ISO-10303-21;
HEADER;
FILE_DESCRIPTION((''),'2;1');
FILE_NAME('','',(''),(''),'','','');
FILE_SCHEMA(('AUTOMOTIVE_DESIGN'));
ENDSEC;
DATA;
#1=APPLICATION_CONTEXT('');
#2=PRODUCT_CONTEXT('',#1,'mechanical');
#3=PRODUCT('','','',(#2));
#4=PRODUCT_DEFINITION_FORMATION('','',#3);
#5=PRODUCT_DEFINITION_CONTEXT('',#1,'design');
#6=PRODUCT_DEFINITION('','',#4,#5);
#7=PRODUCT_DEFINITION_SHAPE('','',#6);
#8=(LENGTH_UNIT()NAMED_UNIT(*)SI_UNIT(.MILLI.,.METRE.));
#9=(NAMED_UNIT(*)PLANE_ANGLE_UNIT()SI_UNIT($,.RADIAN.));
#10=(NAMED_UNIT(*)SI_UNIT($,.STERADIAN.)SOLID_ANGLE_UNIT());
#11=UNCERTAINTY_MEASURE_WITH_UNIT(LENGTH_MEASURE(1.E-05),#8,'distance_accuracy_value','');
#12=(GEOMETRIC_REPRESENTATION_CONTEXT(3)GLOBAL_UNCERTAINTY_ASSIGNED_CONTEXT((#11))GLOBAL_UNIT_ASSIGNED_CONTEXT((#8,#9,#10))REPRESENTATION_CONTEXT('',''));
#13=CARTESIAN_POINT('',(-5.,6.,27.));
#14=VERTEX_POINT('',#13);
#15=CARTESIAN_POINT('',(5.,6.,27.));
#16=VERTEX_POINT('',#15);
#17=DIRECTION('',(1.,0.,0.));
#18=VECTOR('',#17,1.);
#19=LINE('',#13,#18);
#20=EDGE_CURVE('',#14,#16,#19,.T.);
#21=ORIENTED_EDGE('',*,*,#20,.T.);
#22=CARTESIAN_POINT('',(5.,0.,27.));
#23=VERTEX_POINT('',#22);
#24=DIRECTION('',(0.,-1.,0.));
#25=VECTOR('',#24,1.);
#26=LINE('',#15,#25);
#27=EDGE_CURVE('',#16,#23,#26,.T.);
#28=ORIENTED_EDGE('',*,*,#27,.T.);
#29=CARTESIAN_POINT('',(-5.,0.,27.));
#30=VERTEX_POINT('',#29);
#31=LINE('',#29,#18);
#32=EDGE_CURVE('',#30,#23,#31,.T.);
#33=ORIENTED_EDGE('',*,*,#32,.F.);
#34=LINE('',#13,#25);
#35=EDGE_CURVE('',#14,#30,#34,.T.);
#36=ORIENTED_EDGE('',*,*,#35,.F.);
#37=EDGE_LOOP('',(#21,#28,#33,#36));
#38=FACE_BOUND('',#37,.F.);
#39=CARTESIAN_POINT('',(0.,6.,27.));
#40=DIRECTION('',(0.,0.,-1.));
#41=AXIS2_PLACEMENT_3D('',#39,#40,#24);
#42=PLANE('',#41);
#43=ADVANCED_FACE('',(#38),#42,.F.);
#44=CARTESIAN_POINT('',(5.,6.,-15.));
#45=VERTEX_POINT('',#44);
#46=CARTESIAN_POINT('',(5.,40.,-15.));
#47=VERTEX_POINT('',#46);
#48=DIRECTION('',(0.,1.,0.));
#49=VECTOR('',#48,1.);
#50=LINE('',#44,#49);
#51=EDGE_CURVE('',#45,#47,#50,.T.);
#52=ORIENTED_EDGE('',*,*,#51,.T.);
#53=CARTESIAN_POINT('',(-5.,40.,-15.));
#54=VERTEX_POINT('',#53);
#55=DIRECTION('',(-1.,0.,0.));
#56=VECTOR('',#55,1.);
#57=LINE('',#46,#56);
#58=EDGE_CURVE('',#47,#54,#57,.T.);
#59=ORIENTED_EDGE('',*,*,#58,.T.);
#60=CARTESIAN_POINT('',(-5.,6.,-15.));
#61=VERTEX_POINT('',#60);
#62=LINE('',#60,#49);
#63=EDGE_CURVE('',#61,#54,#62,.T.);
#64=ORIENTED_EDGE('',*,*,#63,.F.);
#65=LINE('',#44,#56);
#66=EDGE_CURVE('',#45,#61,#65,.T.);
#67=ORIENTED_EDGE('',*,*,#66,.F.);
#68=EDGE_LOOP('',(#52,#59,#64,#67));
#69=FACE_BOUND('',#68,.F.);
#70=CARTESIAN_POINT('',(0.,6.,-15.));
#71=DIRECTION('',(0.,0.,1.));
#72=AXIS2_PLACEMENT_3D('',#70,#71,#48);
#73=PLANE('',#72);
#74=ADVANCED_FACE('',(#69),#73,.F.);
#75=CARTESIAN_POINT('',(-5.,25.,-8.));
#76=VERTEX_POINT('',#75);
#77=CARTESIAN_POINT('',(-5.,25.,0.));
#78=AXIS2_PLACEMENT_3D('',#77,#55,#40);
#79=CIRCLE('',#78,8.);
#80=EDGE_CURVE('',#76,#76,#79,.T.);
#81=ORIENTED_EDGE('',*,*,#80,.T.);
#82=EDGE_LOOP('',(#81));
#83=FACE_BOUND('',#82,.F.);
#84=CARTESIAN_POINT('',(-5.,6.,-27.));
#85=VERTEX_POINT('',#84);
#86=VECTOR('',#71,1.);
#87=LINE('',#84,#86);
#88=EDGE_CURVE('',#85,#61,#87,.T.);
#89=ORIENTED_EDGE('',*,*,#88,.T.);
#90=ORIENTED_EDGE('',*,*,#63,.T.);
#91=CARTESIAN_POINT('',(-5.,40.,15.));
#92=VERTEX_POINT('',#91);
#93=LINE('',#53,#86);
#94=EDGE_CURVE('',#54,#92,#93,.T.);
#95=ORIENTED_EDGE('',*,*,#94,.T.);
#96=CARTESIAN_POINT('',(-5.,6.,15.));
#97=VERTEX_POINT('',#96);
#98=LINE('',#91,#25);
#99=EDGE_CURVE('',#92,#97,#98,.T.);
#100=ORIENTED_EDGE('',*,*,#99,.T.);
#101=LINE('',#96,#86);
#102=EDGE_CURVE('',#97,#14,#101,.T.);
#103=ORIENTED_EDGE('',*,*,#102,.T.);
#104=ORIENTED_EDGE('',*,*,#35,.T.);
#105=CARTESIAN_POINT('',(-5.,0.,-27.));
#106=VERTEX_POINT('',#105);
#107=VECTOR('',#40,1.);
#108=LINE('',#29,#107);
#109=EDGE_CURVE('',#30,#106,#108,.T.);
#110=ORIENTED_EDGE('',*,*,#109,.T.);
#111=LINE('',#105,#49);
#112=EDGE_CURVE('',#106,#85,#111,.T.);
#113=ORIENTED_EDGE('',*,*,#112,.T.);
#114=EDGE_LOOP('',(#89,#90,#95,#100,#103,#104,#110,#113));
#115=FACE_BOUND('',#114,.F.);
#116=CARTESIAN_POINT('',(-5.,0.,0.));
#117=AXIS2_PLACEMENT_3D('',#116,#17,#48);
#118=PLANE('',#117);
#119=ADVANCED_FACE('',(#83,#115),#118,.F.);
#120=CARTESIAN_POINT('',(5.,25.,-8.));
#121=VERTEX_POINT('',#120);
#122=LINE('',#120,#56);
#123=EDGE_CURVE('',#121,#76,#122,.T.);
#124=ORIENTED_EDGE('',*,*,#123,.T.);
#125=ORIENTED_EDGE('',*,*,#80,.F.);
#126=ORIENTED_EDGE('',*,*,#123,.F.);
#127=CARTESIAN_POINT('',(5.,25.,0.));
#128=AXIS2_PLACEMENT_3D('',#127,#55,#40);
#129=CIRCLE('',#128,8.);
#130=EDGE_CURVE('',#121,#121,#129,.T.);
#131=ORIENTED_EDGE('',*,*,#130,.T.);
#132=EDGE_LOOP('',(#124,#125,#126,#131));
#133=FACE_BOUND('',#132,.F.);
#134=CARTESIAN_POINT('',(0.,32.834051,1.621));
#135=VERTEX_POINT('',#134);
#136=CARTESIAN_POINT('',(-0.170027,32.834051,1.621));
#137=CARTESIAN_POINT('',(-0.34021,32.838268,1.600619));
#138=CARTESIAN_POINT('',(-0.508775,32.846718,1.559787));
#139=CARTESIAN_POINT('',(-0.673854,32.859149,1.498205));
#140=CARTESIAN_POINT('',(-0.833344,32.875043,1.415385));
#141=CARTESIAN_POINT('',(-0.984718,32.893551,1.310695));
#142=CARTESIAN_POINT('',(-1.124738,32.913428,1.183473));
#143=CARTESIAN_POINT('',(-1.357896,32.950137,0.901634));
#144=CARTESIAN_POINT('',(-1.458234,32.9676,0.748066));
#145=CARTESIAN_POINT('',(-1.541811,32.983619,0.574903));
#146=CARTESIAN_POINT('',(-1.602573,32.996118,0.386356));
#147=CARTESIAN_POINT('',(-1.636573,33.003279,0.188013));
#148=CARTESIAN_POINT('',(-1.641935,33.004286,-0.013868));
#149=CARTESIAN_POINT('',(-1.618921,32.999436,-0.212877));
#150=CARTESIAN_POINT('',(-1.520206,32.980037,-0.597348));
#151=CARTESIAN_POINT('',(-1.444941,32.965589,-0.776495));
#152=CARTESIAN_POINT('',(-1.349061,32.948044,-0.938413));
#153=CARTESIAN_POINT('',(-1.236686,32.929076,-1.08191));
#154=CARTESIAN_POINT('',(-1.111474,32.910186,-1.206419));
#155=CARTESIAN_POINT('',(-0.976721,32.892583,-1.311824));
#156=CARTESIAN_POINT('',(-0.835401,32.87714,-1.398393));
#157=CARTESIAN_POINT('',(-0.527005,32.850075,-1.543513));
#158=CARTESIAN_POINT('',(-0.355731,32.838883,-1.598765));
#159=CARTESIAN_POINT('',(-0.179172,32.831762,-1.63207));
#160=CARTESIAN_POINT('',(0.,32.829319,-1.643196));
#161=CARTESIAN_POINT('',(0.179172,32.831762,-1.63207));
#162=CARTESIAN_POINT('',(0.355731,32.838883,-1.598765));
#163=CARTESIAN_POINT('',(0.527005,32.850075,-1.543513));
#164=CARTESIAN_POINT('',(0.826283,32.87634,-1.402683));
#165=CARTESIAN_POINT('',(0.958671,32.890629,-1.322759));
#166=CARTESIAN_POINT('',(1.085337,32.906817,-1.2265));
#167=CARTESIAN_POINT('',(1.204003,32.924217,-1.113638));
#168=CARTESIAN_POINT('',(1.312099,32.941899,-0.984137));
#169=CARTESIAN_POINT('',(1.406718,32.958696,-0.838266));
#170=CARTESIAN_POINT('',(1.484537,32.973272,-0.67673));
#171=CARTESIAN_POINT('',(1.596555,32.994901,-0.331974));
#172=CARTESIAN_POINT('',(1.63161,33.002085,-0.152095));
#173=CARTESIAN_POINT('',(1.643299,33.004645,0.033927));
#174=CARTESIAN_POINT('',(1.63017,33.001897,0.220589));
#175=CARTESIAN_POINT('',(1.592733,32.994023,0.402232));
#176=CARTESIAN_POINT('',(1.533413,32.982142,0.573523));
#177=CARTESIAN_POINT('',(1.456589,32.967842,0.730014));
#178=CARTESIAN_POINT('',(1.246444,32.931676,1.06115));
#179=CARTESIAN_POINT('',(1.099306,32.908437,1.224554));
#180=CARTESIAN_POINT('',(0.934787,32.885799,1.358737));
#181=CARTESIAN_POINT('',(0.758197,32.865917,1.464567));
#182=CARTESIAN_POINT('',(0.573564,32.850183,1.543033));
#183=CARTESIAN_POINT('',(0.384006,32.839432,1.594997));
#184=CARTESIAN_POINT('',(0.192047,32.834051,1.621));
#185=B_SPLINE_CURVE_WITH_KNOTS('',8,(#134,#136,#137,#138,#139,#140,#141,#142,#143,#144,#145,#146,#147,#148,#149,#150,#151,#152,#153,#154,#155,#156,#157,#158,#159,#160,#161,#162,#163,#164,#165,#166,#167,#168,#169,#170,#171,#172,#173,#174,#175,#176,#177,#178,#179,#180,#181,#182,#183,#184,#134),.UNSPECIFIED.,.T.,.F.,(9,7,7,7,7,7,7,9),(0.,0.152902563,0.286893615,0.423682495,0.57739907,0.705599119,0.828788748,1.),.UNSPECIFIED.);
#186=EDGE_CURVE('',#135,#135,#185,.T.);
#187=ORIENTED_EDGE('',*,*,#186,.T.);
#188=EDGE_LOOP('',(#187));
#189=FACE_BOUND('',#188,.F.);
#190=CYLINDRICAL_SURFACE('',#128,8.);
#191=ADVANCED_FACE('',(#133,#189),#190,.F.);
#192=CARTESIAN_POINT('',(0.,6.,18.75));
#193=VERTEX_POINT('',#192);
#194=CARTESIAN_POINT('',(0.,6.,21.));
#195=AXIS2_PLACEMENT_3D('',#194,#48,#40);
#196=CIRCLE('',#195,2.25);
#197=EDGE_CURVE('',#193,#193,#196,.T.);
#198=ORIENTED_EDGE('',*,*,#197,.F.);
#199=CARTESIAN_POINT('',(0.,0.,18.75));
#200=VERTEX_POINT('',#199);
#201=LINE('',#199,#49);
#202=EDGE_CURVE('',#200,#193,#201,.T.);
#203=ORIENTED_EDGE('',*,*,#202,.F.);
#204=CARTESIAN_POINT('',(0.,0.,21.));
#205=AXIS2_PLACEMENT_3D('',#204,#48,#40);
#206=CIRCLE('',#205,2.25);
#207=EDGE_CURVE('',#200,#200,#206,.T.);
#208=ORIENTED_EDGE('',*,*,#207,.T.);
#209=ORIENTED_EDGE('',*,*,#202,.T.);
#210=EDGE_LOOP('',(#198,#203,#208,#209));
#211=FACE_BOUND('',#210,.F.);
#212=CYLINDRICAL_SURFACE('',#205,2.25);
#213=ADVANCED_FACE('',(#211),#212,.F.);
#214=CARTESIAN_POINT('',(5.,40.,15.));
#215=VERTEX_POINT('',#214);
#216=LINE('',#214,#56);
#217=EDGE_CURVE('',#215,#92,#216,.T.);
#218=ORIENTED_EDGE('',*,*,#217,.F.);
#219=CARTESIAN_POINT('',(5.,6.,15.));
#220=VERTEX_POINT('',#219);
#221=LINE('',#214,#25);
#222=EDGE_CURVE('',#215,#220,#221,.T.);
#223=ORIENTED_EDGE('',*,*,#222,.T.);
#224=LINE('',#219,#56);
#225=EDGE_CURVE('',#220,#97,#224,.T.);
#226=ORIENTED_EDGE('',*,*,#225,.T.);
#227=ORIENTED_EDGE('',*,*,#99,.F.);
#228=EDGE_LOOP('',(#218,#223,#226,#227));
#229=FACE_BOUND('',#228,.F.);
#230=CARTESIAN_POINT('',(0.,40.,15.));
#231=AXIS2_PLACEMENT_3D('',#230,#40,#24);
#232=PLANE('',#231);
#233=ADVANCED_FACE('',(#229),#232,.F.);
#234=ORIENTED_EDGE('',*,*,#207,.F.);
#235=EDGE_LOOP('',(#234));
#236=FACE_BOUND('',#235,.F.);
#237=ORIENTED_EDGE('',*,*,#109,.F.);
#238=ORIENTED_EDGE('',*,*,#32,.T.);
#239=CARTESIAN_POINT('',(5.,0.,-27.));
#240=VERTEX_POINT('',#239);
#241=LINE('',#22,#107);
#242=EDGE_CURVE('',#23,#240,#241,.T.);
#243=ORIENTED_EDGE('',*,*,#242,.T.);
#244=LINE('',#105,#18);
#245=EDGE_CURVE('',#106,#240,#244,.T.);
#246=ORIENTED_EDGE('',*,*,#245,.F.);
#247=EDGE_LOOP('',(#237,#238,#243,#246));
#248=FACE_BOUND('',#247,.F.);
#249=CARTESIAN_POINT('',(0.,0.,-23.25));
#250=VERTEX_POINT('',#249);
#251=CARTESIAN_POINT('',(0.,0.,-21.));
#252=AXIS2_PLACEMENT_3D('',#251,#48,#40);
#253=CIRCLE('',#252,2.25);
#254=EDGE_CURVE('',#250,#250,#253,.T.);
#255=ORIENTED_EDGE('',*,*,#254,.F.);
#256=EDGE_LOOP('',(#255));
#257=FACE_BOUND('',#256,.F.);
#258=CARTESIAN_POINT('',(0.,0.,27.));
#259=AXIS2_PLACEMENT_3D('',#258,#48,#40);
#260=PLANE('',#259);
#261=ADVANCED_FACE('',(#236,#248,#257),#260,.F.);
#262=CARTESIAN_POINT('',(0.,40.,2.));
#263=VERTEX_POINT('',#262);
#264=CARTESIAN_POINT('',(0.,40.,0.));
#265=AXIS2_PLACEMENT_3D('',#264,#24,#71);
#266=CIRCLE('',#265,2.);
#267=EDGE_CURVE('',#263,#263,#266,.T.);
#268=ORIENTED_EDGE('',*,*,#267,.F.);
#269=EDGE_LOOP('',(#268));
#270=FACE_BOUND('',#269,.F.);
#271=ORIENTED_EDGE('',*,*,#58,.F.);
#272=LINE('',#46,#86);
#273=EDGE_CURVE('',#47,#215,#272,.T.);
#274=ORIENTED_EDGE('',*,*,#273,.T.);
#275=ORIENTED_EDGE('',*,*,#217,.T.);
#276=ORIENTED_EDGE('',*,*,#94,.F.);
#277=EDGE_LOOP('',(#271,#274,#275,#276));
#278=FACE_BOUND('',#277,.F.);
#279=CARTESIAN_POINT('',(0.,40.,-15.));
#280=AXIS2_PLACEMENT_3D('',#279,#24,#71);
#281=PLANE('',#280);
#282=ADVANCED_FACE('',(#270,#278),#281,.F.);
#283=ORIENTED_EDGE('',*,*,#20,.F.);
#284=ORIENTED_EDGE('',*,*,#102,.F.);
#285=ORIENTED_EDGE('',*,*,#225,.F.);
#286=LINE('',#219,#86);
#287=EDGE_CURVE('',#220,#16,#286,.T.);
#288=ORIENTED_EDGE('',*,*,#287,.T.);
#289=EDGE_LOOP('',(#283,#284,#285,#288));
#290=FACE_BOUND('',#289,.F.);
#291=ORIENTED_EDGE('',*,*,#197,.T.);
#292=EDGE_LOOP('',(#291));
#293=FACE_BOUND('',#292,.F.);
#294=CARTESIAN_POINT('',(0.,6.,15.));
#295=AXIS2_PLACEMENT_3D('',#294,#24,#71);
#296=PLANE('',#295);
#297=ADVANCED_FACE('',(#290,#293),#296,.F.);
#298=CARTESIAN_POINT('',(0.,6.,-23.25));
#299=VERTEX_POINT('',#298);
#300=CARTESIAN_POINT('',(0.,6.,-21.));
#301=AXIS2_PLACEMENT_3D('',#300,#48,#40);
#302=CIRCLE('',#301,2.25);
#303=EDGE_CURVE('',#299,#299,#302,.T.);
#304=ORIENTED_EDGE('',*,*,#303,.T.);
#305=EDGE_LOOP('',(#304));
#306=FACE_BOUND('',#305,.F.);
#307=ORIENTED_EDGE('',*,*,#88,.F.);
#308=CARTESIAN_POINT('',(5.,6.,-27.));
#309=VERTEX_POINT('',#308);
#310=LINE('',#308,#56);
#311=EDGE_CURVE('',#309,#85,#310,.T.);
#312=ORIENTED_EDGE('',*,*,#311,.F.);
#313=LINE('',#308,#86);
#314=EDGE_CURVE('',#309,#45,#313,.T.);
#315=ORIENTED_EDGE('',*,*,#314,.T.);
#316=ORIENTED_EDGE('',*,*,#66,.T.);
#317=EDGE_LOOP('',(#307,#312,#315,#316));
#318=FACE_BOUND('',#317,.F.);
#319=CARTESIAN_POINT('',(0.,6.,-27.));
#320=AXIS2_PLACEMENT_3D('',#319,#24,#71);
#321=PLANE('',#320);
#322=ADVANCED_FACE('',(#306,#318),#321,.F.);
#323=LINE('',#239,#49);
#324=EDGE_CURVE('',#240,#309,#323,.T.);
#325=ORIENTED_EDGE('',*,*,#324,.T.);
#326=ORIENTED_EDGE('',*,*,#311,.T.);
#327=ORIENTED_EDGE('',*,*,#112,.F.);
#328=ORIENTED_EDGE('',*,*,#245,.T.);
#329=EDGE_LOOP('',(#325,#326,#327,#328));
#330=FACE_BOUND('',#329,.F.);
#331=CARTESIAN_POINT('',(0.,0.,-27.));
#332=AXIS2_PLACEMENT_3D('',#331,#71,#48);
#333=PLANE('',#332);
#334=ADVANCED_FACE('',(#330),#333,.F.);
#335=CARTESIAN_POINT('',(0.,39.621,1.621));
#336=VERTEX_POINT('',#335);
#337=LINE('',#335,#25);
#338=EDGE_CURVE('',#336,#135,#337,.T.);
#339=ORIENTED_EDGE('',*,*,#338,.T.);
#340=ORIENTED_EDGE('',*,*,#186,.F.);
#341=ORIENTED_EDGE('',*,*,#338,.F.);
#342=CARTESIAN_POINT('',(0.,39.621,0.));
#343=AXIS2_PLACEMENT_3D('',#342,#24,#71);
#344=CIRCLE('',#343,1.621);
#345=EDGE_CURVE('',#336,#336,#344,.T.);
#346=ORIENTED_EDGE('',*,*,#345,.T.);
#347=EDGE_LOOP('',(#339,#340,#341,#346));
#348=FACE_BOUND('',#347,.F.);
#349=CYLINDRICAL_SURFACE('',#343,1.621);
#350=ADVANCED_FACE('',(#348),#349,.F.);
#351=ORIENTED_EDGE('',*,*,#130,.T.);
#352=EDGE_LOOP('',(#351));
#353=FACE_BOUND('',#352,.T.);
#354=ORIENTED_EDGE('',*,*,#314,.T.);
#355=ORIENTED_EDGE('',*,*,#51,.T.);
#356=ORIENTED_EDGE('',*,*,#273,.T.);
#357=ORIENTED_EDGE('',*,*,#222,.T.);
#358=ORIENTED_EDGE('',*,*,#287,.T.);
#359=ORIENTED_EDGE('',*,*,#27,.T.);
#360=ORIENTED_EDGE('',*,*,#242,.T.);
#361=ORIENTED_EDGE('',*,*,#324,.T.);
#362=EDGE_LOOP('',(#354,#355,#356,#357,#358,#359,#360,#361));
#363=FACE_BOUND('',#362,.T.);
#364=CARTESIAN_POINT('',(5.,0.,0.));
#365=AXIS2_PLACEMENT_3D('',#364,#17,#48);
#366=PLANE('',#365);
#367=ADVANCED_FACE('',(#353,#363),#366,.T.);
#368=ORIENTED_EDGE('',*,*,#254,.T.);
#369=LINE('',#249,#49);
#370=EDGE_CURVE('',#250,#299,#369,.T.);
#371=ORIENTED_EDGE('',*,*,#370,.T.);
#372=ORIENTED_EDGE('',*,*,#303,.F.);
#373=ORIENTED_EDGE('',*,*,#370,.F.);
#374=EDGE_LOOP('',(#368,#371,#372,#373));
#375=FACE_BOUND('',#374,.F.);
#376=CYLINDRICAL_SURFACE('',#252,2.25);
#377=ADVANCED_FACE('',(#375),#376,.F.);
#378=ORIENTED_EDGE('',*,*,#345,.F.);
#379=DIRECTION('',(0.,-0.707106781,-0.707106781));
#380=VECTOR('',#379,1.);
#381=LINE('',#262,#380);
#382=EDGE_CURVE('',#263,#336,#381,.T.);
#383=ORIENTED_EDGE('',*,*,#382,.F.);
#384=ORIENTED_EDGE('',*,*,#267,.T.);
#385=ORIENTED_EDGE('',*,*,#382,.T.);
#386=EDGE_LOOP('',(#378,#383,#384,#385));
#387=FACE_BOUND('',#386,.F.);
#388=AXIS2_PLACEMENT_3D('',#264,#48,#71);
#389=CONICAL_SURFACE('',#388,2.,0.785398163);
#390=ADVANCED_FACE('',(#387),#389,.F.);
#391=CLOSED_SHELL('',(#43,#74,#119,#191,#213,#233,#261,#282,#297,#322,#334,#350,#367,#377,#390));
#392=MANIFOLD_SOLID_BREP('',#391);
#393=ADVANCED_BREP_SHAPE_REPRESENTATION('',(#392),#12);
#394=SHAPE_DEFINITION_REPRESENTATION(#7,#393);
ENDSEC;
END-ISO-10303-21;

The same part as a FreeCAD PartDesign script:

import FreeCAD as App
import Part
import Sketcher

V = App.Vector


def add_polygon(sketch, points):
    """Adds a closed chain of lines whose ends are joined by coincident constraints."""
    first, n = sketch.GeometryCount, len(points)
    for a, b in zip(points, points[1:] + points[:1]):
        sketch.addGeometry(Part.LineSegment(App.Vector(*a, 0), App.Vector(*b, 0)), False)
    for i in range(n):
        sketch.addConstraint(Sketcher.Constraint("Coincident", first + i, 2, first + (i + 1) % n, 1))

doc = App.newDocument("Part")
params = doc.addObject("Spreadsheet::Sheet", "Params")
for row, (alias, value) in enumerate([
    ("sketch1_width", "6 mm"),
    ("sketch1_width2", "34 mm"),
    ("sketch1_height", "12 mm"),
    ("sketch1_height2", "54 mm"),
    ("pad1_length", "10 mm"),
    ("hole_diameter", "3.242 mm"),
    ("hole_depth", "14.0641 mm"),
    ("hole_csink_diameter", "4 mm"),
    ("sketch3_diameter", "4.5 mm"),
    ("hole2_diameter", "4.5 mm"),
    ("hole2_depth", "6 mm"),
    ("linearpattern_pitch", "42 mm"),
    ("sketch4_diameter", "16 mm"),
    ("hole3_diameter", "16 mm"),
    ("hole3_depth", "10 mm"),
], start=1):
    params.set(f"A{row}", alias)
    params.set(f"B{row}", "=" + value)
    params.setAlias(f"B{row}", alias)

body = doc.addObject("PartDesign::Body", "Body")

# Sketch on YZ plane
sketch1 = body.newObject("Sketcher::SketchObject", "Sketch")
sketch1.AttachmentSupport = (doc.getObject("YZ_Plane"), [""])
sketch1.MapMode = "FlatFace"
add_polygon(sketch1, [(6, 15), (6, 27), (0, 27), (0, -27), (6, -27), (6, -15), (40, -15), (40, 15)])  # lines 0-7
sketch1.addConstraint([
    Sketcher.Constraint("Vertical", 0),
    Sketcher.Constraint("Horizontal", 1),
    Sketcher.Constraint("Vertical", 2),
    Sketcher.Constraint("Horizontal", 3),
    Sketcher.Constraint("Vertical", 4),
    Sketcher.Constraint("Horizontal", 5),
    Sketcher.Constraint("Vertical", 6),
    Sketcher.Constraint("Horizontal", 7),
    Sketcher.Constraint("Symmetric", 1, 2, 2, 2, -1, 1),
    Sketcher.Constraint("Symmetric", 4, 2, 7, 2, -1),
    Sketcher.Constraint("DistanceX", 1, 2, 1, 1, 6.0),
    Sketcher.Constraint("DistanceX", 5, 1, 5, 2, 34.0),
    Sketcher.Constraint("DistanceY", 0, 1, 0, 2, 12.0),
    Sketcher.Constraint("DistanceY", 2, 2, 2, 1, 54.0),
])
sketch1.setExpression("Constraints[18]", "Params.sketch1_width")
sketch1.setExpression("Constraints[19]", "Params.sketch1_width2")
sketch1.setExpression("Constraints[20]", "Params.sketch1_height")
sketch1.setExpression("Constraints[21]", "Params.sketch1_height2")
pad1 = body.newObject("PartDesign::Pad", "Pad")
pad1.Profile = sketch1
pad1.setExpression("Length", "Params.pad1_length")
pad1.Midplane = True

# Sketch on XZ plane
sketch2 = body.newObject("Sketcher::SketchObject", "Sketch001")
sketch2.AttachmentSupport = (doc.getObject("XZ_Plane"), [""])
sketch2.MapMode = "FlatFace"
sketch2.AttachmentOffset = App.Placement(V(0, 0, -40), App.Rotation())
sketch2.addGeometry(Part.Circle(V(0, 0, 0), V(0, 0, 1), 1.6), False)
sketch2.addConstraint([
    Sketcher.Constraint("Coincident", 0, 3, -1, 1),
    Sketcher.Constraint("Diameter", 0, 3.242),
])
doc.recompute()
hole = body.newObject("PartDesign::Hole", "Hole")
hole.Profile = sketch2
hole.ThreadType = "None"
hole.setExpression("Diameter", "Params.hole_diameter")
hole.DepthType = "Dimension"
hole.setExpression("Depth", "Params.hole_depth")
hole.DrillPoint = "Angled"
hole.DrillPointAngle = 120
hole.HoleCutType = "Countersink"
hole.setExpression("HoleCutDiameter", "Params.hole_csink_diameter")
hole.HoleCutCountersinkAngle = 90
hole.Reversed = True

# Sketch on XZ plane
sketch3 = body.newObject("Sketcher::SketchObject", "Sketch002")
sketch3.AttachmentSupport = (doc.getObject("XZ_Plane"), [""])
sketch3.MapMode = "FlatFace"
sketch3.addGeometry(Part.Circle(V(0, -21, 0), V(0, 0, 1), 2.2), False)
sketch3.addConstraint([
    Sketcher.Constraint("PointOnObject", 0, 3, -2),
    Sketcher.Constraint("Diameter", 0, 4.5),
    Sketcher.Constraint("DistanceY", 0, 3, -1, 1, 21.0),
])
sketch3.setExpression("Constraints[1]", "Params.sketch3_diameter")
doc.recompute()
hole2 = body.newObject("PartDesign::Hole", "Hole001")
hole2.Profile = sketch3
hole2.ThreadType = "None"
hole2.setExpression("Diameter", "Params.hole2_diameter")
hole2.DepthType = "Dimension"
hole2.setExpression("Depth", "Params.hole2_depth")
hole2.DrillPoint = "Flat"
doc.recompute()

linearpattern = body.newObject("PartDesign::LinearPattern", "LinearPattern")
linearpattern.Originals = [hole2]
linearpattern.Direction = (doc.getObject("Z_Axis"), [""])
linearpattern.Mode = "offset"
linearpattern.setExpression("Offset", "Params.linearpattern_pitch")
linearpattern.Occurrences = 2
body.Tip = linearpattern

# Sketch on YZ plane
sketch4 = body.newObject("Sketcher::SketchObject", "Sketch003")
sketch4.AttachmentSupport = (doc.getObject("YZ_Plane"), [""])
sketch4.MapMode = "FlatFace"
sketch4.AttachmentOffset = App.Placement(V(0, 0, 5), App.Rotation())
sketch4.addGeometry(Part.Circle(V(25, 0, 0), V(0, 0, 1), 8), False)
sketch4.addConstraint([
    Sketcher.Constraint("PointOnObject", 0, 3, -1),
    Sketcher.Constraint("Diameter", 0, 16.0),
    Sketcher.Constraint("DistanceX", -1, 1, 0, 3, 25.0),
])
sketch4.setExpression("Constraints[1]", "Params.sketch4_diameter")
doc.recompute()
hole3 = body.newObject("PartDesign::Hole", "Hole002")
hole3.Profile = sketch4
hole3.ThreadType = "None"
hole3.setExpression("Diameter", "Params.hole3_diameter")
hole3.DepthType = "Dimension"
hole3.setExpression("Depth", "Params.hole3_depth")
hole3.DrillPoint = "Flat"

doc.recompute()
